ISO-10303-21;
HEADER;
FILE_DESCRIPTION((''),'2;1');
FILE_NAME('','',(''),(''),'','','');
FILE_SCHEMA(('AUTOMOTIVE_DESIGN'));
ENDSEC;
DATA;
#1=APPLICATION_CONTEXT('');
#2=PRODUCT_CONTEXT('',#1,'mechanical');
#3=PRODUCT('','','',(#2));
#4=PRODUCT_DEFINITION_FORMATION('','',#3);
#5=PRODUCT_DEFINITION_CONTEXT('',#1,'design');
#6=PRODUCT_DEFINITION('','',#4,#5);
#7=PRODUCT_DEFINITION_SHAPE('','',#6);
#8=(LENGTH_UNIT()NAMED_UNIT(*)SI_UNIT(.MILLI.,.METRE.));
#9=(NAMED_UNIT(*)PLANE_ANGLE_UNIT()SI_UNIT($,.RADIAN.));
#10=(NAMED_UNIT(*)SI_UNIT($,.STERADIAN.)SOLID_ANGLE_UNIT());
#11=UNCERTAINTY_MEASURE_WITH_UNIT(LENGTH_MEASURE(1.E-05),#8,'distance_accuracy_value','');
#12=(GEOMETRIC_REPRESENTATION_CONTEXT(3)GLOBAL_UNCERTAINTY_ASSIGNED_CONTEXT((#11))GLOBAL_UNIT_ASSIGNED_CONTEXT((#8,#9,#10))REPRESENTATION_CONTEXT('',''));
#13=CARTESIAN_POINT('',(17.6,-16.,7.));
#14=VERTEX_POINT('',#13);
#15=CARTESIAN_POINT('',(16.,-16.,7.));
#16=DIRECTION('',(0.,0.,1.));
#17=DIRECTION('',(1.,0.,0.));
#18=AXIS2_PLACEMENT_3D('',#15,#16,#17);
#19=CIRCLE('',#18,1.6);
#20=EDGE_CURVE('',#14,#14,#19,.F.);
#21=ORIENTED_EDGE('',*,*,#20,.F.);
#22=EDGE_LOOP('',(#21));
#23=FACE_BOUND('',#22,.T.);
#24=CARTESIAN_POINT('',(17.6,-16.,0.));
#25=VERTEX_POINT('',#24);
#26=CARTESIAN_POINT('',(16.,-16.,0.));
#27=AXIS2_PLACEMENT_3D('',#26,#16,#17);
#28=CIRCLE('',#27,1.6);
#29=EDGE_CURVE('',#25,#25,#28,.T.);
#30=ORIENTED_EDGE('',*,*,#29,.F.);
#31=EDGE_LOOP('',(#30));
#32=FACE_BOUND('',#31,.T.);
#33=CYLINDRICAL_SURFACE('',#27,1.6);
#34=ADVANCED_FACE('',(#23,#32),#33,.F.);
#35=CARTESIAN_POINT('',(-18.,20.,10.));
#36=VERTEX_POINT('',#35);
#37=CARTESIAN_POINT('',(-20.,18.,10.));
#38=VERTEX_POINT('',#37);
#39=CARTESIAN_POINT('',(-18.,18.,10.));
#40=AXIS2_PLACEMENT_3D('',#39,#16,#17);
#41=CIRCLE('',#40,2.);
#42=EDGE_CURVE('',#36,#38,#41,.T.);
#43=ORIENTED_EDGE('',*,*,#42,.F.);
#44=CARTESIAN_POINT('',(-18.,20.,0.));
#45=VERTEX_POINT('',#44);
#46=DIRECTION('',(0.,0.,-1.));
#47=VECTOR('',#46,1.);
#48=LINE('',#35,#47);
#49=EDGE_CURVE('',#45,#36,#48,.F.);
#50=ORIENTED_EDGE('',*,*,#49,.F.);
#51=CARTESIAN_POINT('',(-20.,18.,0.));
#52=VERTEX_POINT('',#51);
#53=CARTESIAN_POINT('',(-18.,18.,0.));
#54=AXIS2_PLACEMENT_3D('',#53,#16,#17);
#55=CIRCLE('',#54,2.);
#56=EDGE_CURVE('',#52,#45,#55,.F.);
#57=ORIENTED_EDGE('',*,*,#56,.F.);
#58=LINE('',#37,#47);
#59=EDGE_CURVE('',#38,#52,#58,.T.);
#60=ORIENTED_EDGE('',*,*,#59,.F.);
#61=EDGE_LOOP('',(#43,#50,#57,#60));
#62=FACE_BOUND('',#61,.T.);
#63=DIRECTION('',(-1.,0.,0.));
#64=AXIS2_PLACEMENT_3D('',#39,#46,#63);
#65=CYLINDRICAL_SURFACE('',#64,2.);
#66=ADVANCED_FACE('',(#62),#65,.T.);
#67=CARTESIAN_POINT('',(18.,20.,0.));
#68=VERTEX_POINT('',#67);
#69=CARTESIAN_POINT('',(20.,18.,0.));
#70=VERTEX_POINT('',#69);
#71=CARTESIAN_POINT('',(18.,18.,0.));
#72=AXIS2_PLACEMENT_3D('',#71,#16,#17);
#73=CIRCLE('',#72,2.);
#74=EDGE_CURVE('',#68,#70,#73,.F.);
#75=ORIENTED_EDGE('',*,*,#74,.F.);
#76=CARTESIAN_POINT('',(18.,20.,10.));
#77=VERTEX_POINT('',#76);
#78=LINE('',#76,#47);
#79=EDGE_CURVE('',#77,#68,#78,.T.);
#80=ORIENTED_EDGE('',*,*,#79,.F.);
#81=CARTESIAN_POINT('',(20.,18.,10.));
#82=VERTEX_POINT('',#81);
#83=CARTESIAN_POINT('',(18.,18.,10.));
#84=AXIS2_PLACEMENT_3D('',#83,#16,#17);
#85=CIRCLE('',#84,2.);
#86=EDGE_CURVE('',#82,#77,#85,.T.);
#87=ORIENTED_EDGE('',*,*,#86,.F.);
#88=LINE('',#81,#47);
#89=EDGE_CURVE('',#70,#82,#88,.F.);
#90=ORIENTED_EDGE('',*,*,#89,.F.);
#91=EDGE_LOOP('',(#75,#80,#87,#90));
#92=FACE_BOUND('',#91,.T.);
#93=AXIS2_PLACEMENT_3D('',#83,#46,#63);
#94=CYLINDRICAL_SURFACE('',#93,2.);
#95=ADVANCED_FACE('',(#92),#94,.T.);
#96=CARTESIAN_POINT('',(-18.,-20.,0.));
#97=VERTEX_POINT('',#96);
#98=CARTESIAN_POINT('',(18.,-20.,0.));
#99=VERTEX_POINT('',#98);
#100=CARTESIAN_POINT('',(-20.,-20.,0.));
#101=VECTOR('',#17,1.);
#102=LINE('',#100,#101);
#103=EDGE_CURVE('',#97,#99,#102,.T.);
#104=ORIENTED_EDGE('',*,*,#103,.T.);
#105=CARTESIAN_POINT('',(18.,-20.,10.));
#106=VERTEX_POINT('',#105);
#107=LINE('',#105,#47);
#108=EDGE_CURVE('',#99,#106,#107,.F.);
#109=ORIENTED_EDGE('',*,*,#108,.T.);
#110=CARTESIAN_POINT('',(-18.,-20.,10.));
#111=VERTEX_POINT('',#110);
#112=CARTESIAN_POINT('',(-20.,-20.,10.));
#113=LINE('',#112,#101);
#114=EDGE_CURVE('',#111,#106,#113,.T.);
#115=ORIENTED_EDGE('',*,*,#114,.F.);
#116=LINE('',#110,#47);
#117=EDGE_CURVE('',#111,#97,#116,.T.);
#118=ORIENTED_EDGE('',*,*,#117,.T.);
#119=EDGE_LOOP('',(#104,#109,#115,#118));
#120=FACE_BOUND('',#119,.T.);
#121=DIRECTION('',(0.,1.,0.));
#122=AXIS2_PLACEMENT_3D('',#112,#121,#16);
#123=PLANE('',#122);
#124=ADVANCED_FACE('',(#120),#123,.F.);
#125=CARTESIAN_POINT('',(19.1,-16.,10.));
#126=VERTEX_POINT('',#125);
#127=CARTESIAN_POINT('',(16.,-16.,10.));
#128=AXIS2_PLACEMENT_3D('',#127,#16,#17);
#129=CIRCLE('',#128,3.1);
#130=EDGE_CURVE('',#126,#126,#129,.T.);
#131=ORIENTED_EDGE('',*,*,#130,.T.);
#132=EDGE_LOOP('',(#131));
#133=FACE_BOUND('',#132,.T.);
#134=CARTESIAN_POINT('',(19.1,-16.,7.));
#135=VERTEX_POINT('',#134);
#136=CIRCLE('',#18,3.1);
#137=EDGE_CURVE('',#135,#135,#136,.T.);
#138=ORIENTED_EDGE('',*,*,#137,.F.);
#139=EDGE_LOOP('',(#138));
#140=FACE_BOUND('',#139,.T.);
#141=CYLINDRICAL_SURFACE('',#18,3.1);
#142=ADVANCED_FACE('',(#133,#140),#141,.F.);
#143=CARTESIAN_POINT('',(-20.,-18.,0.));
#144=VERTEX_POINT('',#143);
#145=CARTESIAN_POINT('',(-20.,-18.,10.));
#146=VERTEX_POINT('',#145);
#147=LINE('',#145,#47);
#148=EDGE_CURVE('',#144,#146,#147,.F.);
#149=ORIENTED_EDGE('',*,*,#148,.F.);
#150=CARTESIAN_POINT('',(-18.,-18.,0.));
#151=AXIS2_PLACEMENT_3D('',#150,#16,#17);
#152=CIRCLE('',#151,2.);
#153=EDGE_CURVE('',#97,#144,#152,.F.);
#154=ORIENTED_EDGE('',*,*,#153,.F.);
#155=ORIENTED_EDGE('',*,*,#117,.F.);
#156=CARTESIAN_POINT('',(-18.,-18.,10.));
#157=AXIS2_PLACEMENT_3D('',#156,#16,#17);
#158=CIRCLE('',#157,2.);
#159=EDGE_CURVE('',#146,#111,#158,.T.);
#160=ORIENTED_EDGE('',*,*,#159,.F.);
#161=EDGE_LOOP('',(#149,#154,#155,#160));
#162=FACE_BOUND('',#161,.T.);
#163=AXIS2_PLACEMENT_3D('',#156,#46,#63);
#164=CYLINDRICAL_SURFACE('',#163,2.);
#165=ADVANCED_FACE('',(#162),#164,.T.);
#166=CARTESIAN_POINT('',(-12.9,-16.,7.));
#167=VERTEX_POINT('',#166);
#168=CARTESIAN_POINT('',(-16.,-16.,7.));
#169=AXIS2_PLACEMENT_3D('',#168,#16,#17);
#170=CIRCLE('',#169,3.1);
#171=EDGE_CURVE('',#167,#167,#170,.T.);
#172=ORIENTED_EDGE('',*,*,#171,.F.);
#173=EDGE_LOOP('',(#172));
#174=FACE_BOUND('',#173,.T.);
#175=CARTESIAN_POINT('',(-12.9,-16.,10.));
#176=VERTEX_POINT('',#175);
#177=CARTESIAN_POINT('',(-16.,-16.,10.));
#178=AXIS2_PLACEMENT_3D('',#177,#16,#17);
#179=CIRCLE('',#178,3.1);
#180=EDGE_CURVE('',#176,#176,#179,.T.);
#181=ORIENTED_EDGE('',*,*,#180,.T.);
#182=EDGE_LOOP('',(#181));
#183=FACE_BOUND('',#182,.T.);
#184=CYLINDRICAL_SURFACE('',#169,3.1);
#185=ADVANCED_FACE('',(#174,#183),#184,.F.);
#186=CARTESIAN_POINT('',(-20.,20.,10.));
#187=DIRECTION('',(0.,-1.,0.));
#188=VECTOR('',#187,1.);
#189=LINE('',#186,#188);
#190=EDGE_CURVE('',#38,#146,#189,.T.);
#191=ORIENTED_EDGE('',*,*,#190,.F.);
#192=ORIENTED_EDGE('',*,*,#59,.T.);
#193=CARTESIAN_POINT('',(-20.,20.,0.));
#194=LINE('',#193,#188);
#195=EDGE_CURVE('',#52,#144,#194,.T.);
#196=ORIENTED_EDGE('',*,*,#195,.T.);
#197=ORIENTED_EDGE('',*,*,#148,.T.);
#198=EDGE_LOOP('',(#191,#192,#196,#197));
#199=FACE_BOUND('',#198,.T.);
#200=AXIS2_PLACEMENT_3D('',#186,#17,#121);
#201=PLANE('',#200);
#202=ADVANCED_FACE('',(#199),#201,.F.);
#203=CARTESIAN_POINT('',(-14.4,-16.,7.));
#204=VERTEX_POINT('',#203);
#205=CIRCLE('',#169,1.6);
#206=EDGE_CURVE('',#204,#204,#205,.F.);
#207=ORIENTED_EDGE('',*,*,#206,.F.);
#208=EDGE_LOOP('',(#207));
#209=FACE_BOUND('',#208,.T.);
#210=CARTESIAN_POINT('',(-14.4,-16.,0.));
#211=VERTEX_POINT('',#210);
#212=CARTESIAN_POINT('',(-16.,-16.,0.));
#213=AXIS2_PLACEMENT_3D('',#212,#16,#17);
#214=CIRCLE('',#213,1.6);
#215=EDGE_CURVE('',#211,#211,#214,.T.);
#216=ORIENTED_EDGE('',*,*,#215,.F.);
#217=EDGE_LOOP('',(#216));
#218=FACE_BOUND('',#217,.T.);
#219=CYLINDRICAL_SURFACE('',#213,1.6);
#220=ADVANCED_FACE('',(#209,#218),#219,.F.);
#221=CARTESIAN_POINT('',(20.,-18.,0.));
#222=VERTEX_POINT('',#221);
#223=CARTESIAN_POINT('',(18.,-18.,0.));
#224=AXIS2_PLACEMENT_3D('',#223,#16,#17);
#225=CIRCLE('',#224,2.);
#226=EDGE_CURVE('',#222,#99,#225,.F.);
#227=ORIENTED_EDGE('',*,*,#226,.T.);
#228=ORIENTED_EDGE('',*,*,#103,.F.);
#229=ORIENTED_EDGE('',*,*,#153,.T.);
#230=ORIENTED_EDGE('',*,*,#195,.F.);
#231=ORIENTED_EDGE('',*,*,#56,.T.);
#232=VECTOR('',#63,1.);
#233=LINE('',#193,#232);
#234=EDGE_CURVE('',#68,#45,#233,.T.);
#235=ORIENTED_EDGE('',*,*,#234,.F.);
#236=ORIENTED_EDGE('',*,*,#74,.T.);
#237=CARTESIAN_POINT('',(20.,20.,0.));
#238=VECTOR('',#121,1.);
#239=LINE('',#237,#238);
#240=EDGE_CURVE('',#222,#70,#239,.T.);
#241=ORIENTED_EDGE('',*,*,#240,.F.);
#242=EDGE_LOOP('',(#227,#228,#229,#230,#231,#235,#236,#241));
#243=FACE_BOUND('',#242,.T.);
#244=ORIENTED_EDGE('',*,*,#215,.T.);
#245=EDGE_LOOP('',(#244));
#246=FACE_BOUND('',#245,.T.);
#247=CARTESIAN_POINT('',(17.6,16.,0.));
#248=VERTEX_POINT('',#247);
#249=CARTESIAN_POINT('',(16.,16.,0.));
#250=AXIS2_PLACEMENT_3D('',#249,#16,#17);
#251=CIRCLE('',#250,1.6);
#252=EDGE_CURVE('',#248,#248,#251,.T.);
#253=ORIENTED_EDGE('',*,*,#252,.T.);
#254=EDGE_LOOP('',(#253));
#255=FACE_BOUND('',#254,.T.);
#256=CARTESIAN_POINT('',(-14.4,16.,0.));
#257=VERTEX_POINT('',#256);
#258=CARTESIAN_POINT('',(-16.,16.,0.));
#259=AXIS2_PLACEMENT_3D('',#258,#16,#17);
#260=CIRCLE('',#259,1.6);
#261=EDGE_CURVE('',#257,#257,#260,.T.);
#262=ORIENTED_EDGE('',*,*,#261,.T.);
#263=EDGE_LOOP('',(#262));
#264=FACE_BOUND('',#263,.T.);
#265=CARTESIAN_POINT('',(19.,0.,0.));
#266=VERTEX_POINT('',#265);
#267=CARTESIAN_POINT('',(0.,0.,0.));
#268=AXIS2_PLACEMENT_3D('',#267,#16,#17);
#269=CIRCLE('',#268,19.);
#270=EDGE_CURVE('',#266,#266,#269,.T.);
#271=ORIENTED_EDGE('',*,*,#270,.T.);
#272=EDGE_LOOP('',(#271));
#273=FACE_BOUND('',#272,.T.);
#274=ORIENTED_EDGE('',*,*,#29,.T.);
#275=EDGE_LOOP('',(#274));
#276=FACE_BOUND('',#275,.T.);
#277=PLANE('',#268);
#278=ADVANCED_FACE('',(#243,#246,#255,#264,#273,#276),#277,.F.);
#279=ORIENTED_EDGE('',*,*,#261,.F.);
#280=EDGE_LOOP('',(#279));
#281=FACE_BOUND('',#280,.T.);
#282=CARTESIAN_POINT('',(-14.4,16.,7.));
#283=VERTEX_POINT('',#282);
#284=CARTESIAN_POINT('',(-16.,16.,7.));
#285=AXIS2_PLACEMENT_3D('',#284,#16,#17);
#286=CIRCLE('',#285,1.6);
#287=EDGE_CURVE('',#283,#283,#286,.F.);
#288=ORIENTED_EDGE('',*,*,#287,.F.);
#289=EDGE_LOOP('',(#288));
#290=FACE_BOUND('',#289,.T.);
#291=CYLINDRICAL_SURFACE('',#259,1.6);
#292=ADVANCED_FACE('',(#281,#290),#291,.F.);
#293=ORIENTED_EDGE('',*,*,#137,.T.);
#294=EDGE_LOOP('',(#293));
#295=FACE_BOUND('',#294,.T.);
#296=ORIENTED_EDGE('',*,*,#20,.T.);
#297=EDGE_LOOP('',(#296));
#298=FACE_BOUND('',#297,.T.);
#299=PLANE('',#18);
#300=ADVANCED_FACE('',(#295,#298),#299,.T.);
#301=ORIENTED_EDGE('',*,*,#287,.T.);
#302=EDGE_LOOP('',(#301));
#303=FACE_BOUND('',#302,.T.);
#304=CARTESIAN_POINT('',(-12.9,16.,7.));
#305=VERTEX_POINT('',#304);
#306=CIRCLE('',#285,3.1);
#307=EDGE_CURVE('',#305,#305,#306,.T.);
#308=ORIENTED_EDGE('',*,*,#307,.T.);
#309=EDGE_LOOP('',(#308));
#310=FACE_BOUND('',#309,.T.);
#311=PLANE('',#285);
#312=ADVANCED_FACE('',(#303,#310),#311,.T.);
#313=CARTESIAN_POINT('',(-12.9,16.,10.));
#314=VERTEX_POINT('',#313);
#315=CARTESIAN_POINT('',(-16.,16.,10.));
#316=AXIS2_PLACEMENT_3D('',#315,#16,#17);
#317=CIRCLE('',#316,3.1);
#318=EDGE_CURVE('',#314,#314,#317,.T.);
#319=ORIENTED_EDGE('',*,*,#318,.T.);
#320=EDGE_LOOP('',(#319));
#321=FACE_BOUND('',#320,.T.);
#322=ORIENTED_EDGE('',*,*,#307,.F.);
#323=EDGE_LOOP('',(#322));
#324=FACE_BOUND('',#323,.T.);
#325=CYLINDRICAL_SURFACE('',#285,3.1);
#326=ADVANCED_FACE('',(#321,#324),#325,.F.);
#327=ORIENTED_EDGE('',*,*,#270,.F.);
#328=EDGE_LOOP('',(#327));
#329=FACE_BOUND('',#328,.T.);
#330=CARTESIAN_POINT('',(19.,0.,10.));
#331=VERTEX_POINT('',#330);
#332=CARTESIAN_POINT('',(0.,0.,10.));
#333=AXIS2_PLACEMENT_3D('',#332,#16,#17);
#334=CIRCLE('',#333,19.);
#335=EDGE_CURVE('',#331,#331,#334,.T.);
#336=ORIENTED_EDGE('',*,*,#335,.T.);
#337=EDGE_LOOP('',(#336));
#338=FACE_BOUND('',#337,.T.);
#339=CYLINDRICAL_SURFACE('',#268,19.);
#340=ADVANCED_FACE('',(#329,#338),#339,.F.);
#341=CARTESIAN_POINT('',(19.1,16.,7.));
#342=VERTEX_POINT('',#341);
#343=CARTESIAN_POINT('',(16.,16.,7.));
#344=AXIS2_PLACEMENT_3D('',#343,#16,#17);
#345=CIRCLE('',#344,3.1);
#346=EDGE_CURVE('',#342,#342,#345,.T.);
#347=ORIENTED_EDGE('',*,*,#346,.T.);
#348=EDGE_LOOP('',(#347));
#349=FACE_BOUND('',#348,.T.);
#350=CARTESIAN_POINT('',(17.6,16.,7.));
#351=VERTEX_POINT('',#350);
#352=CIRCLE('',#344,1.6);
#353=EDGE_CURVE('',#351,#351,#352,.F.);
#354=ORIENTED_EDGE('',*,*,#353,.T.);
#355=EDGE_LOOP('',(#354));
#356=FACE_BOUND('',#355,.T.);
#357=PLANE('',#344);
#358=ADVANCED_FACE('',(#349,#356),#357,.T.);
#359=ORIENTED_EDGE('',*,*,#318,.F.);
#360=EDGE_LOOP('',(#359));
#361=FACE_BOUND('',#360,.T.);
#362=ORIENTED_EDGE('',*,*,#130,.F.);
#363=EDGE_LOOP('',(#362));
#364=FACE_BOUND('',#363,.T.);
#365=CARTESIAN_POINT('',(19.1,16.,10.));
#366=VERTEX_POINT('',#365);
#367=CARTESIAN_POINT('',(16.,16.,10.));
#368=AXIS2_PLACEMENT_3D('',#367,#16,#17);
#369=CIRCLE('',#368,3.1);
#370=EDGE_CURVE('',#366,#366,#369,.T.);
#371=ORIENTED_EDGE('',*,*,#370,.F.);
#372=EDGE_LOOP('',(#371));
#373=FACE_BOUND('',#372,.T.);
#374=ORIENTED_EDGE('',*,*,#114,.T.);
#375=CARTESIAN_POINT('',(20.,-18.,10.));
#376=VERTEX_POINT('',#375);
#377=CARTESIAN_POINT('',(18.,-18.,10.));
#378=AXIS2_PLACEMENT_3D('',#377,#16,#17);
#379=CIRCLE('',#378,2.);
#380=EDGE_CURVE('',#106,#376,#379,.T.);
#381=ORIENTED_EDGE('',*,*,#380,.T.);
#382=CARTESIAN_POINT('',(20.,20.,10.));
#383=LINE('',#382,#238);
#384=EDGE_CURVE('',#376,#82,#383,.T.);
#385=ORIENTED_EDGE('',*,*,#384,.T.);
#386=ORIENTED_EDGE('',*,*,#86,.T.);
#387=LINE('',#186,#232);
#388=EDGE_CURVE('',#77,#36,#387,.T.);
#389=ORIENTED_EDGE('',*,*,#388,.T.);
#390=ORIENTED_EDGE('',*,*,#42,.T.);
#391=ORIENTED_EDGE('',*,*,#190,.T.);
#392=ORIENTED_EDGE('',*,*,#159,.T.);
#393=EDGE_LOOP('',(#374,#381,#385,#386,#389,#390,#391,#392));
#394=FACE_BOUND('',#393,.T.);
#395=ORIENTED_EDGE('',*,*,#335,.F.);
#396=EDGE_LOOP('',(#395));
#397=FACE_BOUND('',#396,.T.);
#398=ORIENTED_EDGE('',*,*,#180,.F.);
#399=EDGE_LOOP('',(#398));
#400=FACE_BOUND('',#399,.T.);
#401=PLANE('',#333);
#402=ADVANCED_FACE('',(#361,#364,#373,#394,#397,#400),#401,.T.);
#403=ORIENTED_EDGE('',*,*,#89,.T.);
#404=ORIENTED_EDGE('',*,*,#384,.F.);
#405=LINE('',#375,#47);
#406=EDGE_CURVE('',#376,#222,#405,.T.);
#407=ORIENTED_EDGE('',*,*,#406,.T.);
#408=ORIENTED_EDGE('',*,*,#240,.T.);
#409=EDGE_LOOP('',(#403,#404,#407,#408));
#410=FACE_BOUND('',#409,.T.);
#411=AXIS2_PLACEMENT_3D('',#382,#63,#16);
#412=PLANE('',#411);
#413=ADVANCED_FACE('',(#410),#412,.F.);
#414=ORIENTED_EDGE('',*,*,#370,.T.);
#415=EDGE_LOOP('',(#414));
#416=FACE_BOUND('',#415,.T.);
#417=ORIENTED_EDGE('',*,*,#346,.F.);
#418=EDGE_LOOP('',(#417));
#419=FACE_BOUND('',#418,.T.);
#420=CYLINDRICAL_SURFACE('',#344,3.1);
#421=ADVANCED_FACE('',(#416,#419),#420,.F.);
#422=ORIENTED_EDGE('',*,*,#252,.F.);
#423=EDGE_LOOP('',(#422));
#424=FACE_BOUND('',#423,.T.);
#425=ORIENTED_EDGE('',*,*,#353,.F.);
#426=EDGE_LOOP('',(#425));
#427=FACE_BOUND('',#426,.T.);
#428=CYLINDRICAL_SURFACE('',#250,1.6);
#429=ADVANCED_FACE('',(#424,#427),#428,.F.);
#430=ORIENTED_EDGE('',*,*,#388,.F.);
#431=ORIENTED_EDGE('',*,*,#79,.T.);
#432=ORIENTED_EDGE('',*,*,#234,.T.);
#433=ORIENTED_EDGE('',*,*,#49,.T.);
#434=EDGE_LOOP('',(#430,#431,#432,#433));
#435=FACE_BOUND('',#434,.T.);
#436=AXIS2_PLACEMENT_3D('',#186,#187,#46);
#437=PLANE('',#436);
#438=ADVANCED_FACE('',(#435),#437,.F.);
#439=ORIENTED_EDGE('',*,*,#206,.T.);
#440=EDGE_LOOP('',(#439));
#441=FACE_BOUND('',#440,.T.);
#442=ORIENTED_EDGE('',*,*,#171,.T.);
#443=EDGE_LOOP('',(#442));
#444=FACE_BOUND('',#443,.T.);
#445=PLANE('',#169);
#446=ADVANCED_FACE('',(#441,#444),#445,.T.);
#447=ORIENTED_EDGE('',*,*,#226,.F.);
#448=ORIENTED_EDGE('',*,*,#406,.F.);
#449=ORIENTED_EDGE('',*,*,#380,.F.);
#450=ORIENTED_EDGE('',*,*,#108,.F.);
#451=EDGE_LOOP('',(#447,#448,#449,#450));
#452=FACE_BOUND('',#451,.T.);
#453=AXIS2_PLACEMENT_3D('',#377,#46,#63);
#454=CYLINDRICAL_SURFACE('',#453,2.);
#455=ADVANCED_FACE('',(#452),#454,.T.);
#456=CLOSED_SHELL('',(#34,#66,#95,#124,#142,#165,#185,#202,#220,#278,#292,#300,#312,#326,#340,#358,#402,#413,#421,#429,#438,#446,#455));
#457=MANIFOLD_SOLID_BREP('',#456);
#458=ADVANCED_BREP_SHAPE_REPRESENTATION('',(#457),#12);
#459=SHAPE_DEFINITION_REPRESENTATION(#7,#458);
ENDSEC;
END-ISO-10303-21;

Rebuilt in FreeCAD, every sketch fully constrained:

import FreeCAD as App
import Part
import Sketcher

V = App.Vector


def edges_at(feature, points):
    """Names of the edges that pass closest to the given points."""
    edges = feature.Shape.Edges
    near = lambda p: min(range(len(edges)), key=lambda i: edges[i].distToShape(Part.Vertex(*p))[0])
    return sorted({f"Edge{near(p) + 1}" for p in points})

doc = App.newDocument("Part")
body = doc.addObject("PartDesign::Body", "Body")

# Sketch on XY plane
sketch1 = doc.addObject("Sketcher::SketchObject", "Sketch")
body.addObject(sketch1)
sketch1.AttachmentSupport = (doc.XY_Plane, [""])
sketch1.MapMode = "FlatFace"
sketch1.addGeometry(Part.LineSegment(V(-20, 20, 0), V(-20, -20, 0)), False)
sketch1.addGeometry(Part.LineSegment(V(-20, -20, 0), V(20, -20, 0)), False)
sketch1.addGeometry(Part.LineSegment(V(20, -20, 0), V(20, 20, 0)), False)
sketch1.addGeometry(Part.LineSegment(V(20, 20, 0), V(-20, 20, 0)), False)
sketch1.addConstraint(Sketcher.Constraint("Coincident", 0, 2, 1, 1))
sketch1.addConstraint(Sketcher.Constraint("Coincident", 1, 2, 2, 1))
sketch1.addConstraint(Sketcher.Constraint("Coincident", 2, 2, 3, 1))
sketch1.addConstraint(Sketcher.Constraint("Coincident", 3, 2, 0, 1))
sketch1.addConstraint(Sketcher.Constraint("Vertical", 0))
sketch1.addConstraint(Sketcher.Constraint("Horizontal", 1))
sketch1.addConstraint(Sketcher.Constraint("Vertical", 2))
sketch1.addConstraint(Sketcher.Constraint("Horizontal", 3))
sketch1.addConstraint(Sketcher.Constraint("Symmetric", 0, 2, 2, 2, -1, 1))
sketch1.addConstraint(Sketcher.Constraint("Equal", 3, 0))
sketch1.addConstraint(Sketcher.Constraint("DistanceX", 1, 1, 1, 2, 40.0))
pad1 = doc.addObject("PartDesign::Pad", "Pad")
body.addObject(pad1)
pad1.Profile = sketch1
pad1.Length = 10

# Sketch on XY plane
sketch2 = doc.addObject("Sketcher::SketchObject", "Sketch001")
body.addObject(sketch2)
sketch2.AttachmentSupport = (doc.XY_Plane, [""])
sketch2.MapMode = "FlatFace"
sketch2.AttachmentOffset = App.Placement(V(0, 0, 10), App.Rotation())
sketch2.addGeometry(Part.Circle(V(0, 0, 0), V(0, 0, 1), 19), False)
sketch2.addGeometry(Part.Circle(V(-16, 16, 0), V(0, 0, 1), 1.6), False)
sketch2.addGeometry(Part.Circle(V(16, 16, 0), V(0, 0, 1), 1.6), False)
sketch2.addGeometry(Part.Circle(V(16, -16, 0), V(0, 0, 1), 1.6), False)
sketch2.addGeometry(Part.Circle(V(-16, -16, 0), V(0, 0, 1), 1.6), False)
sketch2.addConstraint(Sketcher.Constraint("Coincident", 0, 3, -1, 1))
sketch2.addConstraint(Sketcher.Constraint("Equal", 1, 2))
sketch2.addConstraint(Sketcher.Constraint("Equal", 2, 3))
sketch2.addConstraint(Sketcher.Constraint("Equal", 3, 4))
sketch2.addConstraint(Sketcher.Constraint("Symmetric", 1, 3, 3, 3, -1, 1))
sketch2.addConstraint(Sketcher.Constraint("Symmetric", 2, 3, 4, 3, -1, 1))
sketch2.addConstraint(Sketcher.Constraint("Symmetric", 1, 3, 2, 3, -2))
sketch2.addConstraint(Sketcher.Constraint("Diameter", 0, 38.0))
sketch2.addConstraint(Sketcher.Constraint("Diameter", 1, 3.2))
sketch2.addConstraint(Sketcher.Constraint("DistanceX", 1, 3, -1, 1, 16.0))
sketch2.addConstraint(Sketcher.Constraint("DistanceY", -1, 1, 1, 3, 16.0))
pocket1 = doc.addObject("PartDesign::Pocket", "Pocket")
body.addObject(pocket1)
pocket1.Profile = sketch2
pocket1.Type = "ThroughAll"
doc.recompute()

fillet = doc.addObject("PartDesign::Fillet", "Fillet")
body.addObject(fillet)
fillet.Base = (pocket1, edges_at(pocket1, [
    (20, -20, 5),
    (-20, -20, 5),
    (-20, 20, 5),
    (20, 20, 5),
]))
fillet.Radius = 2

# Sketch on XY plane
sketch3 = doc.addObject("Sketcher::SketchObject", "Sketch002")
body.addObject(sketch3)
sketch3.AttachmentSupport = (doc.XY_Plane, [""])
sketch3.MapMode = "FlatFace"
sketch3.AttachmentOffset = App.Placement(V(0, 0, 10), App.Rotation())
sketch3.addGeometry(Part.Circle(V(-16, -16, 0), V(0, 0, 1), 3.1), False)
sketch3.addGeometry(Part.Circle(V(16, -16, 0), V(0, 0, 1), 3.1), False)
sketch3.addGeometry(Part.Circle(V(16, 16, 0), V(0, 0, 1), 3.1), False)
sketch3.addGeometry(Part.Circle(V(-16, 16, 0), V(0, 0, 1), 3.1), False)
sketch3.addConstraint(Sketcher.Constraint("Equal", 0, 1))
sketch3.addConstraint(Sketcher.Constraint("Equal", 1, 2))
sketch3.addConstraint(Sketcher.Constraint("Equal", 2, 3))
sketch3.addConstraint(Sketcher.Constraint("Symmetric", 0, 3, 2, 3, -1, 1))
sketch3.addConstraint(Sketcher.Constraint("Symmetric", 1, 3, 3, 3, -1, 1))
sketch3.addConstraint(Sketcher.Constraint("Symmetric", 0, 3, 1, 3, -2))
sketch3.addConstraint(Sketcher.Constraint("Diameter", 0, 6.2))
sketch3.addConstraint(Sketcher.Constraint("DistanceX", 0, 3, -1, 1, 16.0))
sketch3.addConstraint(Sketcher.Constraint("DistanceY", 0, 3, -1, 1, 16.0))
pocket2 = doc.addObject("PartDesign::Pocket", "Pocket001")
body.addObject(pocket2)
pocket2.Profile = sketch3
pocket2.Length = 3

doc.recompute()
